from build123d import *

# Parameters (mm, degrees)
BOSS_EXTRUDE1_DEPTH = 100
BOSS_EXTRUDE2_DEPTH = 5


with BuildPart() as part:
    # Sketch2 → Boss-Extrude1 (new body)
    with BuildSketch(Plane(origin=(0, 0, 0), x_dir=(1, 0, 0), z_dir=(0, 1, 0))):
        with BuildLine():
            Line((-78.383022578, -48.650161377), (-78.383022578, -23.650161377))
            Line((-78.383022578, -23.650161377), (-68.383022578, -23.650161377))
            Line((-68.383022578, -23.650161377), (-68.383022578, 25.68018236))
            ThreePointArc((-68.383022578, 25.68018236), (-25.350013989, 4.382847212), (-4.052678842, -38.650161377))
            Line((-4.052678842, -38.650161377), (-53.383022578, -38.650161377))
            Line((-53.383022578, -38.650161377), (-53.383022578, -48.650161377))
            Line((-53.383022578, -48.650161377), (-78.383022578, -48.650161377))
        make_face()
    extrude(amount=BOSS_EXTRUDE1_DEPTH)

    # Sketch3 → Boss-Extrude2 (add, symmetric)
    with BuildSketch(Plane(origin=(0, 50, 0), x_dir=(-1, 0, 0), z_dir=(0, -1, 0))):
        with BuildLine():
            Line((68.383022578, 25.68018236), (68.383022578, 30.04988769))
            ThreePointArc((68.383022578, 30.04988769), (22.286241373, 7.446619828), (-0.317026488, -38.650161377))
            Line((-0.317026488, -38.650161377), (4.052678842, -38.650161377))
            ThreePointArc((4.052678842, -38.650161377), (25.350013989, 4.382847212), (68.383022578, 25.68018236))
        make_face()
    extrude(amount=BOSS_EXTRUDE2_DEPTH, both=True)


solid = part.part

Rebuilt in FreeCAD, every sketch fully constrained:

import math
import FreeCAD as App
import Part
import Sketcher

V = App.Vector
Q = App.Units.Quantity

doc = App.newDocument("Part")
body = doc.addObject("PartDesign::Body", "Body")

sketch1 = body.newObject("Sketcher::SketchObject", "Sketch")
sketch1.AttachmentSupport = (doc.getObject("XZ_Plane"), [""])
sketch1.MapMode = "FlatFace"
sketch1.addGeometry(Part.LineSegment(V(-78, 24, 0), V(-78, 49, 0)), False)
sketch1.addGeometry(Part.LineSegment(V(-78, 49, 0), V(-53, 49, 0)), False)
sketch1.addGeometry(Part.LineSegment(V(-53, 49, 0), V(-53, 39, 0)), False)
sketch1.addGeometry(Part.LineSegment(V(-53, 39, 0), V(-4, 39, 0)), False)
sketch1.addGeometry(Part.ArcOfCircle(Part.Circle(V(-78, 49, 0), V(0, 0, 1), 75), math.radians(-82), math.radians(-8)), False)
sketch1.addGeometry(Part.LineSegment(V(-68, -26, 0), V(-68, 24, 0)), False)
sketch1.addGeometry(Part.LineSegment(V(-68, 24, 0), V(-78, 24, 0)), False)
sketch1.addConstraint(Sketcher.Constraint("Coincident", 0, 2, 1, 1))
sketch1.addConstraint(Sketcher.Constraint("Coincident", 1, 2, 2, 1))
sketch1.addConstraint(Sketcher.Constraint("Coincident", 2, 2, 3, 1))
sketch1.addConstraint(Sketcher.Constraint("Coincident", 3, 2, 4, 2))
sketch1.addConstraint(Sketcher.Constraint("Coincident", 4, 1, 5, 1))
sketch1.addConstraint(Sketcher.Constraint("Coincident", 5, 2, 6, 1))
sketch1.addConstraint(Sketcher.Constraint("Coincident", 6, 2, 0, 1))
sketch1.addConstraint(Sketcher.Constraint("Vertical", 0))
sketch1.addConstraint(Sketcher.Constraint("Horizontal", 1))
sketch1.addConstraint(Sketcher.Constraint("Vertical", 2))
sketch1.addConstraint(Sketcher.Constraint("Horizontal", 3))
sketch1.addConstraint(Sketcher.Constraint("Vertical", 5))
sketch1.addConstraint(Sketcher.Constraint("Horizontal", 6))
sketch1.addConstraint(Sketcher.Constraint("Coincident", 0, 2, 4, 3))
sketch1.addConstraint(Sketcher.Constraint("Equal", 1, 0))
sketch1.addConstraint(Sketcher.Constraint("Equal", 6, 2))
sketch1.addConstraint(Sketcher.Constraint("Radius", 4, Q("75 mm")))
sketch1.addConstraint(Sketcher.Constraint("DistanceX", 1, 1, 1, 2, Q("25 mm")))
sketch1.addConstraint(Sketcher.Constraint("DistanceX", 6, 2, 6, 1, Q("10 mm")))
sketch1.addConstraint(Sketcher.Constraint("DistanceY", -1, 1, 4, 3, Q("48.650161 mm")))
sketch1.addConstraint(Sketcher.Constraint("DistanceX", 3, 2, -1, 1, Q("4.052679 mm")))
pad1 = body.newObject("PartDesign::Pad", "Pad")
pad1.Profile = sketch1
pad1.Length = 100
pad1.Reversed = True

sketch2 = body.newObject("Sketcher::SketchObject", "Sketch001")
sketch2.AttachmentSupport = (doc.getObject("XZ_Plane"), [""])
sketch2.MapMode = "FlatFace"
sketch2.AttachmentOffset = App.Placement(V(0, 0, -50), App.Rotation())
sketch2.addGeometry(Part.LineSegment(V(-68.4, -25.7, 0), V(-68.4, -30, 0)), False)
sketch2.addGeometry(Part.ArcOfCircle(Part.Circle(V(-78.4, 48.7, 0), V(0, 0, 1), 79.3), math.radians(-83), math.radians(-7)), False)
sketch2.addGeometry(Part.LineSegment(V(0.3, 38.7, 0), V(-4.1, 38.7, 0)), False)
sketch2.addGeometry(Part.ArcOfCircle(Part.Circle(V(-78.4, 48.7, 0), V(0, 0, 1), 75), math.radians(-82), math.radians(-8)), False)
sketch2.addConstraint(Sketcher.Constraint("Coincident", 0, 2, 1, 1))
sketch2.addConstraint(Sketcher.Constraint("Coincident", 1, 2, 2, 1))
sketch2.addConstraint(Sketcher.Constraint("Coincident", 2, 2, 3, 2))
sketch2.addConstraint(Sketcher.Constraint("Coincident", 3, 1, 0, 1))
sketch2.addConstraint(Sketcher.Constraint("Vertical", 0))
sketch2.addConstraint(Sketcher.Constraint("Horizontal", 2))
sketch2.addConstraint(Sketcher.Constraint("Coincident", 3, 3, 1, 3))
sketch2.addConstraint(Sketcher.Constraint("Equal", 2, 0))
sketch2.addConstraint(Sketcher.Constraint("Radius", 3, Q("75 mm")))
sketch2.addConstraint(Sketcher.Constraint("DistanceX", 1, 3, 0, 2, Q("10 mm")))
sketch2.addConstraint(Sketcher.Constraint("Radius", 1, Q("79.332829 mm")))
sketch2.addConstraint(Sketcher.Constraint("DistanceY", -1, 1, 1, 3, Q("48.650161 mm")))
sketch2.addConstraint(Sketcher.Constraint("DistanceX", 2, 2, -1, 1, Q("4.052679 mm")))
pad2 = body.newObject("PartDesign::Pad", "Pad001")
pad2.Profile = sketch2
pad2.Length = 10
pad2.Midplane = True

doc.recompute()
